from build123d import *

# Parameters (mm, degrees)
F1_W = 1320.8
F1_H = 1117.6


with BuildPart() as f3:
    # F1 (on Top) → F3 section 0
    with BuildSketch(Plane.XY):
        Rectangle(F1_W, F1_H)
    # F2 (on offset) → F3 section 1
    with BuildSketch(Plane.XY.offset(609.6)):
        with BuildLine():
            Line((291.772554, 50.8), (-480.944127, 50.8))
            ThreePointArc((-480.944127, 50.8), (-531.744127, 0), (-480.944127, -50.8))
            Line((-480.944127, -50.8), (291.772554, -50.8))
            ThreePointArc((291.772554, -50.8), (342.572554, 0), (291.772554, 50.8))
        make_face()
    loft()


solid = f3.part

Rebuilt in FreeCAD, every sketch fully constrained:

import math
import FreeCAD as App
import Part
import Sketcher
Q = App.Units.Quantity

doc = App.newDocument("Part")
params = doc.addObject("Spreadsheet::Sheet", "Params")
for row, (alias, value) in enumerate([
    ("sketch1_width", "52 in"),
    ("sketch1_height", "44 in"),
    ("sketch2_radius", "2 in"),
], start=1):
    params.set(f"A{row}", alias)
    params.set(f"B{row}", "=" + value)
    params.setAlias(f"B{row}", alias)

body = doc.addObject("PartDesign::Body", "Body")

sketch1 = body.newObject("Sketcher::SketchObject", "Sketch")
sketch1.AttachmentSupport = (doc.getObject("XY_Plane"), [""])
sketch1.MapMode = "FlatFace"
sketch1.addGeometry([
    Part.LineSegment(App.Vector(-660, 559, 0), App.Vector(-660, -559, 0)),
    Part.LineSegment(App.Vector(-660, -559, 0), App.Vector(660, -559, 0)),
    Part.LineSegment(App.Vector(660, -559, 0), App.Vector(660, 559, 0)),
    Part.LineSegment(App.Vector(660, 559, 0), App.Vector(-660, 559, 0)),
], False)
sketch1.addConstraint([
    Sketcher.Constraint("Coincident", 0, 2, 1, 1),
    Sketcher.Constraint("Coincident", 1, 2, 2, 1),
    Sketcher.Constraint("Coincident", 2, 2, 3, 1),
    Sketcher.Constraint("Coincident", 3, 2, 0, 1),
    Sketcher.Constraint("Vertical", 0),
    Sketcher.Constraint("Horizontal", 1),
    Sketcher.Constraint("Vertical", 2),
    Sketcher.Constraint("Horizontal", 3),
    Sketcher.Constraint("Symmetric", 0, 2, 2, 2, -1, 1),
    Sketcher.Constraint("DistanceX", 1, 1, 1, 2, Q("52 in")),
    Sketcher.Constraint("DistanceY", 0, 2, 0, 1, Q("44 in")),
])
sketch1.setExpression("Constraints[9]", "Params.sketch1_width")
sketch1.setExpression("Constraints[10]", "Params.sketch1_height")

sketch2 = body.newObject("Sketcher::SketchObject", "Sketch001")
sketch2.AttachmentSupport = (doc.getObject("XY_Plane"), [""])
sketch2.MapMode = "FlatFace"
sketch2.AttachmentOffset = App.Placement(App.Vector(0, 0, 24 * 25.4), App.Rotation())
sketch2.addGeometry([
    Part.LineSegment(App.Vector(292, 51, 0), App.Vector(-481, 51, 0)),
    Part.ArcOfCircle(Part.Circle(App.Vector(-481, 0, 0), App.Vector(0, 0, 1), 51), math.radians(90), math.radians(270)),
    Part.LineSegment(App.Vector(-481, -51, 0), App.Vector(292, -51, 0)),
    Part.ArcOfCircle(Part.Circle(App.Vector(292, 0, 0), App.Vector(0, 0, 1), 51), math.radians(-90), math.radians(90)),
], False)
sketch2.addConstraint([
    Sketcher.Constraint("Tangent", 0, 2, 1, 1),
    Sketcher.Constraint("Tangent", 1, 2, 2, 1),
    Sketcher.Constraint("Tangent", 2, 2, 3, 1),
    Sketcher.Constraint("Tangent", 3, 2, 0, 1),
    Sketcher.Constraint("Horizontal", 0),
    Sketcher.Constraint("Horizontal", 2),
    Sketcher.Constraint("PointOnObject", 1, 3, -1),
    Sketcher.Constraint("Radius", 1, Q("2 in")),
    Sketcher.Constraint("DistanceX", 0, 2, 0, 1, 772.716681),
    Sketcher.Constraint("DistanceX", 1, 3, -1, 1, 480.944127),
])
sketch2.setExpression("Constraints[7]", "Params.sketch2_radius")

additiveloft = body.newObject("PartDesign::AdditiveLoft", "AdditiveLoft")
additiveloft.Profile = sketch1
additiveloft.Sections = [sketch2]

doc.recompute()
